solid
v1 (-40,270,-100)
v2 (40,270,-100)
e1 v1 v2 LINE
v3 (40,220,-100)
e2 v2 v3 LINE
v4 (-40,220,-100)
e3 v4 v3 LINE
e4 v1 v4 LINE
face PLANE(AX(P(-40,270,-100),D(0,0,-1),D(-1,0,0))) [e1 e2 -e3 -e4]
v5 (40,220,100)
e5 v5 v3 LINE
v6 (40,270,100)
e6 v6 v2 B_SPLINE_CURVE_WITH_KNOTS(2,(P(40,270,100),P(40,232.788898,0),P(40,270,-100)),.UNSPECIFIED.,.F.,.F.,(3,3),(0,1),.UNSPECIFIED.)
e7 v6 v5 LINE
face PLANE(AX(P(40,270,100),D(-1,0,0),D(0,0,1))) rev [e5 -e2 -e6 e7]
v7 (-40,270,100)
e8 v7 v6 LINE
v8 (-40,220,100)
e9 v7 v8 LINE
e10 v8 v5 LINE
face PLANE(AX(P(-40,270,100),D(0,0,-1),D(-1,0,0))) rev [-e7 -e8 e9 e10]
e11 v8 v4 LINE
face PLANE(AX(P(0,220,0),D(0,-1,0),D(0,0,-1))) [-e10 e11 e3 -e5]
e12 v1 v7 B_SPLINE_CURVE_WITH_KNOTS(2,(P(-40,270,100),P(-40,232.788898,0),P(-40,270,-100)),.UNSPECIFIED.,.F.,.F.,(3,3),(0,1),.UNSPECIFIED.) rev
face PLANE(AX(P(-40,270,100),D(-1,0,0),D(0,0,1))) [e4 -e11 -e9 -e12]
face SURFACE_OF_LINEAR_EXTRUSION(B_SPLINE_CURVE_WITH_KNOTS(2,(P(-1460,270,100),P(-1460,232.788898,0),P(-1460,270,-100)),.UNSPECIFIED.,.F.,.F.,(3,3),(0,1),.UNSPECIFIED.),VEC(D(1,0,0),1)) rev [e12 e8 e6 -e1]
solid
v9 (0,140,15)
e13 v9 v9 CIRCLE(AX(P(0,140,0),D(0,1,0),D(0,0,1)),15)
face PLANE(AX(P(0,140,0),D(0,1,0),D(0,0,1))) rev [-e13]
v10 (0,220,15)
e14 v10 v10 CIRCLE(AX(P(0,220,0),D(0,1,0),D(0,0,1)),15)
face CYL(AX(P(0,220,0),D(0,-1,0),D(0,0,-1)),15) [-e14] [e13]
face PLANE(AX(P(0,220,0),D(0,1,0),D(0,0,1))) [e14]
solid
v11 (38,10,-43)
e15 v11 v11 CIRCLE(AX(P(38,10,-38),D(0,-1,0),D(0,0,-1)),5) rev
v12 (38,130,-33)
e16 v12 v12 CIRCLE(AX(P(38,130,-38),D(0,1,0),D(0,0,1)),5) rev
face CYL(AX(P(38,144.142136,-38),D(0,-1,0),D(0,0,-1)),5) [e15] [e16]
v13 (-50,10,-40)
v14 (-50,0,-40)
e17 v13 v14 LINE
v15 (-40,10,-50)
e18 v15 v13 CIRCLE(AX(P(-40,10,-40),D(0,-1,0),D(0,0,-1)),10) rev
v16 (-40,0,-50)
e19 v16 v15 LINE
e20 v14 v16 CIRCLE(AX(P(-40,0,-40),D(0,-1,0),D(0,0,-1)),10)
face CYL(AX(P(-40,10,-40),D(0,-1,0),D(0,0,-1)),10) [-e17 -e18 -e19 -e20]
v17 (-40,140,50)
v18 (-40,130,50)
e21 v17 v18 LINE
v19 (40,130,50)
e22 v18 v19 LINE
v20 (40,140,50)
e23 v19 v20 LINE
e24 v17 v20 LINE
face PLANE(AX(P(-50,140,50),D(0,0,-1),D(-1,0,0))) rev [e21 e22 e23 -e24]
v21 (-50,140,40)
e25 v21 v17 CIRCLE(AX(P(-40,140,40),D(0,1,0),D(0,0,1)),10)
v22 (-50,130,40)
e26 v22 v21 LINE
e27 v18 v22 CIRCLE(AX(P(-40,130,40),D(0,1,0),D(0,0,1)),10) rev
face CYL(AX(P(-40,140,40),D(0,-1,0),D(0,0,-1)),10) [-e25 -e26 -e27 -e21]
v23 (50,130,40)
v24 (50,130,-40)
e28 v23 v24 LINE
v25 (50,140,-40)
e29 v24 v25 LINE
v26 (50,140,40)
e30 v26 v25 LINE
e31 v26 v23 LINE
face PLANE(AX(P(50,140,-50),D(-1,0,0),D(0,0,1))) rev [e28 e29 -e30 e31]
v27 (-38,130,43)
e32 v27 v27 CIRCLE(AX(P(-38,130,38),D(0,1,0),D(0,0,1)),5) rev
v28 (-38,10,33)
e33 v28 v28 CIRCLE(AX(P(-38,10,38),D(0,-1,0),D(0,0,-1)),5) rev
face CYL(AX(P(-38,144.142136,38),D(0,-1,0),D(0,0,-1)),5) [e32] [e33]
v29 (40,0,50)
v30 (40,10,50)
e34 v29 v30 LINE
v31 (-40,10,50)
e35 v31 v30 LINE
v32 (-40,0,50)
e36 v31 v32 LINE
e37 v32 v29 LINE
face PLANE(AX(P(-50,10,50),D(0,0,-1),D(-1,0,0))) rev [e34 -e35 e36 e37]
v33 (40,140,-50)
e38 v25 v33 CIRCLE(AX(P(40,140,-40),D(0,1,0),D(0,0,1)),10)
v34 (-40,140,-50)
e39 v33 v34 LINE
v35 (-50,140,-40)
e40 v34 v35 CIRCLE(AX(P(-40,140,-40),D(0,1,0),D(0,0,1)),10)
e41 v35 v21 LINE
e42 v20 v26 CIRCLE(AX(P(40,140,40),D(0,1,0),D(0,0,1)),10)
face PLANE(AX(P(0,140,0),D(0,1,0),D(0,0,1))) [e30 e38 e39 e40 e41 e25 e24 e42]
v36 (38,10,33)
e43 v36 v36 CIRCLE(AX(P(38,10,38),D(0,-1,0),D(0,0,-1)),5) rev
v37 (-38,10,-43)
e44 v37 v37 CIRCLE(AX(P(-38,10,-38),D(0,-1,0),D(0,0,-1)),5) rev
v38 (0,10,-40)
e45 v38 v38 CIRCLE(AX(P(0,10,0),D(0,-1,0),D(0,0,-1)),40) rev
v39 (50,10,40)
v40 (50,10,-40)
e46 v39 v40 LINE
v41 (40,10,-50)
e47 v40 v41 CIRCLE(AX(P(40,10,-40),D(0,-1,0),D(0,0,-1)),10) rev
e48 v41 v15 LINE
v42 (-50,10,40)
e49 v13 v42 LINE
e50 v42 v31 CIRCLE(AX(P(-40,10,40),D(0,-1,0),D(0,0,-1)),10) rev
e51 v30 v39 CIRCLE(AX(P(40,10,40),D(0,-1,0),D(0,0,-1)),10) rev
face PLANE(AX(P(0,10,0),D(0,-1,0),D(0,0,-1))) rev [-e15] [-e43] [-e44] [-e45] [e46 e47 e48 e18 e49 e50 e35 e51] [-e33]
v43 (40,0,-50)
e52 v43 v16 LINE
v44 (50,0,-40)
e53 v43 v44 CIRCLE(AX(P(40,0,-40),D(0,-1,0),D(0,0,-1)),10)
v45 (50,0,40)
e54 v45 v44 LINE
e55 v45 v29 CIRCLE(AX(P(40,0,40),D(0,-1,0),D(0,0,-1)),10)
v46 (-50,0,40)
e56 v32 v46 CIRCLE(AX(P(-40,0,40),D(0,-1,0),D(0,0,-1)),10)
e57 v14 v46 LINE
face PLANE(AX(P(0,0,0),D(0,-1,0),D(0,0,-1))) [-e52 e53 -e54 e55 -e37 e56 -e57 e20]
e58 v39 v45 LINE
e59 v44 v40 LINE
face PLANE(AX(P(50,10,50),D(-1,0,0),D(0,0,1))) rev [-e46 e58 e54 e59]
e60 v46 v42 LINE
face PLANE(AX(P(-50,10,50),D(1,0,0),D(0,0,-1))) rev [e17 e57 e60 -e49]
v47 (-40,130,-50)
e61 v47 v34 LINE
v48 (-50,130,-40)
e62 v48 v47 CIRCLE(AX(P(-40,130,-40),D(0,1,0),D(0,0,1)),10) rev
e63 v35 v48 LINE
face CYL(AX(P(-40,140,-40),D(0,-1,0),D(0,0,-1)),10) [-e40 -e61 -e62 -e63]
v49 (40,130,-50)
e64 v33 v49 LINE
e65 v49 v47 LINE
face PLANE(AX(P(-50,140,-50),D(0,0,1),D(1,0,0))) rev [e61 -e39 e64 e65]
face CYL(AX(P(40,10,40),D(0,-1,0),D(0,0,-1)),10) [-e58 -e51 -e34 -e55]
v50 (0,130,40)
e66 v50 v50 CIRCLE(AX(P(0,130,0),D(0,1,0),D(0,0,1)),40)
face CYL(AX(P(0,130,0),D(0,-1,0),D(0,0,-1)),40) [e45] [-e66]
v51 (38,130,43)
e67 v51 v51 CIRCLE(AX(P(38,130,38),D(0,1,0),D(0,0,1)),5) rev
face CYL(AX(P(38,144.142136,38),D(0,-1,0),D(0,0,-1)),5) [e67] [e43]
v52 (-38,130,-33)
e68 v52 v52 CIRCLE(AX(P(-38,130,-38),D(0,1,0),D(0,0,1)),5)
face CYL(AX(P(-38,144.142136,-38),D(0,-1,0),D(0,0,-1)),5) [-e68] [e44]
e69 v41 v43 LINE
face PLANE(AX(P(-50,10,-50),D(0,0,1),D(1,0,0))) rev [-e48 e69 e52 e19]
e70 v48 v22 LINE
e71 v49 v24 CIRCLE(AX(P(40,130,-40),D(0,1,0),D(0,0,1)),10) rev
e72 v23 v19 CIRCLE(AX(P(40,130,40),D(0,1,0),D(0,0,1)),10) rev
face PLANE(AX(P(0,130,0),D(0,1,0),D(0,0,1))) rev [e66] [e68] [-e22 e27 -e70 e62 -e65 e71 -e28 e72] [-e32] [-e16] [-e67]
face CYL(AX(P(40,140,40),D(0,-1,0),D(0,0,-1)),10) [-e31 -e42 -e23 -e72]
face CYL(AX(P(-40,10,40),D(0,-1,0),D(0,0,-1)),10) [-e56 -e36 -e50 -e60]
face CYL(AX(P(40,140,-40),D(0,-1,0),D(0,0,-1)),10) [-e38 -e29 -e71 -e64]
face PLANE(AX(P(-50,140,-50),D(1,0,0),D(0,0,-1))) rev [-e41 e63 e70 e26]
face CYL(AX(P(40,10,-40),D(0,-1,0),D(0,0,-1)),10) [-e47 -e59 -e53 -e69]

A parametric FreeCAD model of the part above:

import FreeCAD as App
import Part
import Sketcher
from FreeCAD import Vector
Q = App.Units.Quantity


def edges_at(feature, points):
    """Names of the edges that pass closest to the given points."""
    edges = feature.Shape.Edges
    near = lambda p: min(range(len(edges)), key=lambda i: edges[i].distToShape(Part.Vertex(*p))[0])
    return sorted({f"Edge{near(p) + 1}" for p in points})

doc = App.newDocument("Part")
body = doc.addObject("PartDesign::Body", "Body")

# Sketch on XZ plane
sketch1 = body.newObject("Sketcher::SketchObject", "Sketch")
sketch1.AttachmentSupport = (doc.getObject("XZ_Plane"), [""])
sketch1.MapMode = "FlatFace"
sketch1.addGeometry(Part.LineSegment(Vector(-50, -50, 0), Vector(-50, 50, 0)), False)
sketch1.addGeometry(Part.LineSegment(Vector(-50, 50, 0), Vector(50, 50, 0)), False)
sketch1.addGeometry(Part.LineSegment(Vector(50, 50, 0), Vector(50, -50, 0)), False)
sketch1.addGeometry(Part.LineSegment(Vector(50, -50, 0), Vector(-50, -50, 0)), False)
sketch1.addConstraint(Sketcher.Constraint("Coincident", 0, 2, 1, 1))
sketch1.addConstraint(Sketcher.Constraint("Coincident", 1, 2, 2, 1))
sketch1.addConstraint(Sketcher.Constraint("Coincident", 2, 2, 3, 1))
sketch1.addConstraint(Sketcher.Constraint("Coincident", 3, 2, 0, 1))
sketch1.addConstraint(Sketcher.Constraint("Vertical", 0))
sketch1.addConstraint(Sketcher.Constraint("Horizontal", 1))
sketch1.addConstraint(Sketcher.Constraint("Vertical", 2))
sketch1.addConstraint(Sketcher.Constraint("Horizontal", 3))
sketch1.addConstraint(Sketcher.Constraint("Symmetric", 0, 2, 2, 2, -1, 1))
sketch1.addConstraint(Sketcher.Constraint("Equal", 3, 0))
sketch1.addConstraint(Sketcher.Constraint("DistanceX", 1, 1, 1, 2, Q("100 mm")))
pad1 = body.newObject("PartDesign::Pad", "Pad")
pad1.Profile = sketch1
pad1.Length = 10
pad1.Reversed = True
body2 = doc.addObject("PartDesign::Body", "Body001")

# Sketch on XZ plane
sketch2 = body2.newObject("Sketcher::SketchObject", "Sketch001")
sketch2.AttachmentSupport = (doc.getObject("XZ_Plane001"), [""])
sketch2.MapMode = "FlatFace"
sketch2.AttachmentOffset = App.Placement(Vector(0, 0, -10), App.Rotation())
sketch2.addGeometry(Part.Circle(Vector(0, 0, 0), Vector(0, 0, 1), 40), False)
sketch2.addConstraint(Sketcher.Constraint("Coincident", 0, 3, -1, 1))
sketch2.addConstraint(Sketcher.Constraint("Diameter", 0, Q("80 mm")))
pad2 = body2.newObject("PartDesign::Pad", "Pad001")
pad2.Profile = sketch2
pad2.Length = 120
pad2.Reversed = True
body3 = doc.addObject("PartDesign::Body", "Body002")

# Sketch on XZ plane
sketch3 = body3.newObject("Sketcher::SketchObject", "Sketch002")
sketch3.AttachmentSupport = (doc.getObject("XZ_Plane002"), [""])
sketch3.MapMode = "FlatFace"
sketch3.AttachmentOffset = App.Placement(Vector(0, 0, -130), App.Rotation())
sketch3.addGeometry(Part.LineSegment(Vector(-50, -50, 0), Vector(-50, 50, 0)), False)
sketch3.addGeometry(Part.LineSegment(Vector(-50, 50, 0), Vector(50, 50, 0)), False)
sketch3.addGeometry(Part.LineSegment(Vector(50, 50, 0), Vector(50, -50, 0)), False)
sketch3.addGeometry(Part.LineSegment(Vector(50, -50, 0), Vector(-50, -50, 0)), False)
sketch3.addConstraint(Sketcher.Constraint("Coincident", 0, 2, 1, 1))
sketch3.addConstraint(Sketcher.Constraint("Coincident", 1, 2, 2, 1))
sketch3.addConstraint(Sketcher.Constraint("Coincident", 2, 2, 3, 1))
sketch3.addConstraint(Sketcher.Constraint("Coincident", 3, 2, 0, 1))
sketch3.addConstraint(Sketcher.Constraint("Vertical", 0))
sketch3.addConstraint(Sketcher.Constraint("Horizontal", 1))
sketch3.addConstraint(Sketcher.Constraint("Vertical", 2))
sketch3.addConstraint(Sketcher.Constraint("Horizontal", 3))
sketch3.addConstraint(Sketcher.Constraint("Symmetric", 0, 2, 2, 2, -1, 1))
sketch3.addConstraint(Sketcher.Constraint("Equal", 3, 0))
sketch3.addConstraint(Sketcher.Constraint("DistanceX", 1, 1, 1, 2, Q("100 mm")))
pad3 = body3.newObject("PartDesign::Pad", "Pad002")
pad3.Profile = sketch3
pad3.Length = 10
pad3.Reversed = True
body4 = doc.addObject("PartDesign::Body", "Body003")

# Sketch on XZ plane
sketch4 = body4.newObject("Sketcher::SketchObject", "Sketch003")
sketch4.AttachmentSupport = (doc.getObject("XZ_Plane003"), [""])
sketch4.MapMode = "FlatFace"
sketch4.AttachmentOffset = App.Placement(Vector(0, 0, -140), App.Rotation())
sketch4.addGeometry(Part.Circle(Vector(0, 0, 0), Vector(0, 0, 1), 15), False)
sketch4.addConstraint(Sketcher.Constraint("Coincident", 0, 3, -1, 1))
sketch4.addConstraint(Sketcher.Constraint("Diameter", 0, Q("30 mm")))
pad4 = body4.newObject("PartDesign::Pad", "Pad003")
pad4.Profile = sketch4
pad4.Length = 80
pad4.Reversed = True
doc.recompute()

boolean = body.newObject("PartDesign::Boolean", "Boolean")
boolean.Type = "Fuse"
boolean.addObjects([body2])
doc.recompute()

boolean2 = body.newObject("PartDesign::Boolean", "Boolean001")
boolean2.Type = "Fuse"
boolean2.addObjects([body3])

# Sketch on XZ plane
sketch5 = body.newObject("Sketcher::SketchObject", "Sketch004")
sketch5.AttachmentSupport = (doc.getObject("XZ_Plane"), [""])
sketch5.MapMode = "FlatFace"
sketch5.AttachmentOffset = App.Placement(Vector(0, 0, -10), App.Rotation())
sketch5.addGeometry(Part.Circle(Vector(-38, -38, 0), Vector(0, 0, 1), 5), False)
sketch5.addGeometry(Part.Circle(Vector(38, -38, 0), Vector(0, 0, 1), 5), False)
sketch5.addGeometry(Part.Circle(Vector(38, 38, 0), Vector(0, 0, 1), 5), False)
sketch5.addGeometry(Part.Circle(Vector(-38, 38, 0), Vector(0, 0, 1), 5), False)
sketch5.addConstraint(Sketcher.Constraint("Equal", 0, 1))
sketch5.addConstraint(Sketcher.Constraint("Equal", 1, 2))
sketch5.addConstraint(Sketcher.Constraint("Equal", 2, 3))
sketch5.addConstraint(Sketcher.Constraint("Symmetric", 0, 3, 2, 3, -1, 1))
sketch5.addConstraint(Sketcher.Constraint("Symmetric", 1, 3, 3, 3, -1, 1))
sketch5.addConstraint(Sketcher.Constraint("Symmetric", 0, 3, 1, 3, -2))
sketch5.addConstraint(Sketcher.Constraint("Diameter", 0, Q("10 mm")))
sketch5.addConstraint(Sketcher.Constraint("DistanceX", 0, 3, -1, 1, Q("38 mm")))
sketch5.addConstraint(Sketcher.Constraint("DistanceY", 0, 3, -1, 1, Q("38 mm")))
pad5 = body.newObject("PartDesign::Pad", "Pad004")
pad5.Profile = sketch5
pad5.Length = 120
pad5.Reversed = True
doc.recompute()

fillet = body.newObject("PartDesign::Fillet", "Fillet")
fillet.Base = (pad5, edges_at(pad5, [
    (-50, 135, -50),
    (-50, 135, 50),
    (50, 135, 50),
    (50, 135, -50),
    (50, 5, 50),
    (-50, 5, 50),
    (-50, 5, -50),
    (50, 5, -50),
]))
fillet.Radius = 10
body5 = doc.addObject("PartDesign::Body", "Body004")

# Sketch on XZ plane
sketch6 = body5.newObject("Sketcher::SketchObject", "Sketch005")
sketch6.AttachmentSupport = (doc.getObject("XZ_Plane004"), [""])
sketch6.MapMode = "FlatFace"
sketch6.AttachmentOffset = App.Placement(Vector(0, 0, -220), App.Rotation())
sketch6.addGeometry(Part.LineSegment(Vector(-40, -100, 0), Vector(-40, 100, 0)), False)
sketch6.addGeometry(Part.LineSegment(Vector(-40, 100, 0), Vector(40, 100, 0)), False)
sketch6.addGeometry(Part.LineSegment(Vector(40, 100, 0), Vector(40, -100, 0)), False)
sketch6.addGeometry(Part.LineSegment(Vector(40, -100, 0), Vector(-40, -100, 0)), False)
sketch6.addConstraint(Sketcher.Constraint("Coincident", 0, 2, 1, 1))
sketch6.addConstraint(Sketcher.Constraint("Coincident", 1, 2, 2, 1))
sketch6.addConstraint(Sketcher.Constraint("Coincident", 2, 2, 3, 1))
sketch6.addConstraint(Sketcher.Constraint("Coincident", 3, 2, 0, 1))
sketch6.addConstraint(Sketcher.Constraint("Vertical", 0))
sketch6.addConstraint(Sketcher.Constraint("Horizontal", 1))
sketch6.addConstraint(Sketcher.Constraint("Vertical", 2))
sketch6.addConstraint(Sketcher.Constraint("Horizontal", 3))
sketch6.addConstraint(Sketcher.Constraint("Symmetric", 0, 2, 2, 2, -1, 1))
sketch6.addConstraint(Sketcher.Constraint("DistanceX", 1, 1, 1, 2, Q("80 mm")))
sketch6.addConstraint(Sketcher.Constraint("DistanceY", 0, 1, 0, 2, Q("200 mm")))
pad6 = body5.newObject("PartDesign::Pad", "Pad005")
pad6.Profile = sketch6
pad6.Length = 50
pad6.Reversed = True

# Sketch on YZ plane
sketch7 = body5.newObject("Sketcher::SketchObject", "Sketch006")
sketch7.AttachmentSupport = (doc.getObject("YZ_Plane004"), [""])
sketch7.MapMode = "FlatFace"
sketch7.AttachmentOffset = App.Placement(Vector(0, 0, 40), App.Rotation())
sketch7.addGeometry(Part.LineSegment(Vector(270, -100, 0), Vector(270, 100, 0)), False)
sketch7.addGeometry(Part.BSplineCurve([Vector(270, 100, 0), Vector(232.788898, 0, 0), Vector(270, -100, 0)], [3, 3], [0, 1], False, 2, [1, 1, 1], False), False)
sketch7.addConstraint(Sketcher.Constraint("Block", 1))
sketch7.addConstraint(Sketcher.Constraint("Coincident", 0, 1, 1, 2))
sketch7.addConstraint(Sketcher.Constraint("Coincident", 1, 1, 0, 2))
pocket1 = body5.newObject("PartDesign::Pocket", "Pocket")
pocket1.Profile = sketch7
pocket1.Length = 1500

doc.recompute()
